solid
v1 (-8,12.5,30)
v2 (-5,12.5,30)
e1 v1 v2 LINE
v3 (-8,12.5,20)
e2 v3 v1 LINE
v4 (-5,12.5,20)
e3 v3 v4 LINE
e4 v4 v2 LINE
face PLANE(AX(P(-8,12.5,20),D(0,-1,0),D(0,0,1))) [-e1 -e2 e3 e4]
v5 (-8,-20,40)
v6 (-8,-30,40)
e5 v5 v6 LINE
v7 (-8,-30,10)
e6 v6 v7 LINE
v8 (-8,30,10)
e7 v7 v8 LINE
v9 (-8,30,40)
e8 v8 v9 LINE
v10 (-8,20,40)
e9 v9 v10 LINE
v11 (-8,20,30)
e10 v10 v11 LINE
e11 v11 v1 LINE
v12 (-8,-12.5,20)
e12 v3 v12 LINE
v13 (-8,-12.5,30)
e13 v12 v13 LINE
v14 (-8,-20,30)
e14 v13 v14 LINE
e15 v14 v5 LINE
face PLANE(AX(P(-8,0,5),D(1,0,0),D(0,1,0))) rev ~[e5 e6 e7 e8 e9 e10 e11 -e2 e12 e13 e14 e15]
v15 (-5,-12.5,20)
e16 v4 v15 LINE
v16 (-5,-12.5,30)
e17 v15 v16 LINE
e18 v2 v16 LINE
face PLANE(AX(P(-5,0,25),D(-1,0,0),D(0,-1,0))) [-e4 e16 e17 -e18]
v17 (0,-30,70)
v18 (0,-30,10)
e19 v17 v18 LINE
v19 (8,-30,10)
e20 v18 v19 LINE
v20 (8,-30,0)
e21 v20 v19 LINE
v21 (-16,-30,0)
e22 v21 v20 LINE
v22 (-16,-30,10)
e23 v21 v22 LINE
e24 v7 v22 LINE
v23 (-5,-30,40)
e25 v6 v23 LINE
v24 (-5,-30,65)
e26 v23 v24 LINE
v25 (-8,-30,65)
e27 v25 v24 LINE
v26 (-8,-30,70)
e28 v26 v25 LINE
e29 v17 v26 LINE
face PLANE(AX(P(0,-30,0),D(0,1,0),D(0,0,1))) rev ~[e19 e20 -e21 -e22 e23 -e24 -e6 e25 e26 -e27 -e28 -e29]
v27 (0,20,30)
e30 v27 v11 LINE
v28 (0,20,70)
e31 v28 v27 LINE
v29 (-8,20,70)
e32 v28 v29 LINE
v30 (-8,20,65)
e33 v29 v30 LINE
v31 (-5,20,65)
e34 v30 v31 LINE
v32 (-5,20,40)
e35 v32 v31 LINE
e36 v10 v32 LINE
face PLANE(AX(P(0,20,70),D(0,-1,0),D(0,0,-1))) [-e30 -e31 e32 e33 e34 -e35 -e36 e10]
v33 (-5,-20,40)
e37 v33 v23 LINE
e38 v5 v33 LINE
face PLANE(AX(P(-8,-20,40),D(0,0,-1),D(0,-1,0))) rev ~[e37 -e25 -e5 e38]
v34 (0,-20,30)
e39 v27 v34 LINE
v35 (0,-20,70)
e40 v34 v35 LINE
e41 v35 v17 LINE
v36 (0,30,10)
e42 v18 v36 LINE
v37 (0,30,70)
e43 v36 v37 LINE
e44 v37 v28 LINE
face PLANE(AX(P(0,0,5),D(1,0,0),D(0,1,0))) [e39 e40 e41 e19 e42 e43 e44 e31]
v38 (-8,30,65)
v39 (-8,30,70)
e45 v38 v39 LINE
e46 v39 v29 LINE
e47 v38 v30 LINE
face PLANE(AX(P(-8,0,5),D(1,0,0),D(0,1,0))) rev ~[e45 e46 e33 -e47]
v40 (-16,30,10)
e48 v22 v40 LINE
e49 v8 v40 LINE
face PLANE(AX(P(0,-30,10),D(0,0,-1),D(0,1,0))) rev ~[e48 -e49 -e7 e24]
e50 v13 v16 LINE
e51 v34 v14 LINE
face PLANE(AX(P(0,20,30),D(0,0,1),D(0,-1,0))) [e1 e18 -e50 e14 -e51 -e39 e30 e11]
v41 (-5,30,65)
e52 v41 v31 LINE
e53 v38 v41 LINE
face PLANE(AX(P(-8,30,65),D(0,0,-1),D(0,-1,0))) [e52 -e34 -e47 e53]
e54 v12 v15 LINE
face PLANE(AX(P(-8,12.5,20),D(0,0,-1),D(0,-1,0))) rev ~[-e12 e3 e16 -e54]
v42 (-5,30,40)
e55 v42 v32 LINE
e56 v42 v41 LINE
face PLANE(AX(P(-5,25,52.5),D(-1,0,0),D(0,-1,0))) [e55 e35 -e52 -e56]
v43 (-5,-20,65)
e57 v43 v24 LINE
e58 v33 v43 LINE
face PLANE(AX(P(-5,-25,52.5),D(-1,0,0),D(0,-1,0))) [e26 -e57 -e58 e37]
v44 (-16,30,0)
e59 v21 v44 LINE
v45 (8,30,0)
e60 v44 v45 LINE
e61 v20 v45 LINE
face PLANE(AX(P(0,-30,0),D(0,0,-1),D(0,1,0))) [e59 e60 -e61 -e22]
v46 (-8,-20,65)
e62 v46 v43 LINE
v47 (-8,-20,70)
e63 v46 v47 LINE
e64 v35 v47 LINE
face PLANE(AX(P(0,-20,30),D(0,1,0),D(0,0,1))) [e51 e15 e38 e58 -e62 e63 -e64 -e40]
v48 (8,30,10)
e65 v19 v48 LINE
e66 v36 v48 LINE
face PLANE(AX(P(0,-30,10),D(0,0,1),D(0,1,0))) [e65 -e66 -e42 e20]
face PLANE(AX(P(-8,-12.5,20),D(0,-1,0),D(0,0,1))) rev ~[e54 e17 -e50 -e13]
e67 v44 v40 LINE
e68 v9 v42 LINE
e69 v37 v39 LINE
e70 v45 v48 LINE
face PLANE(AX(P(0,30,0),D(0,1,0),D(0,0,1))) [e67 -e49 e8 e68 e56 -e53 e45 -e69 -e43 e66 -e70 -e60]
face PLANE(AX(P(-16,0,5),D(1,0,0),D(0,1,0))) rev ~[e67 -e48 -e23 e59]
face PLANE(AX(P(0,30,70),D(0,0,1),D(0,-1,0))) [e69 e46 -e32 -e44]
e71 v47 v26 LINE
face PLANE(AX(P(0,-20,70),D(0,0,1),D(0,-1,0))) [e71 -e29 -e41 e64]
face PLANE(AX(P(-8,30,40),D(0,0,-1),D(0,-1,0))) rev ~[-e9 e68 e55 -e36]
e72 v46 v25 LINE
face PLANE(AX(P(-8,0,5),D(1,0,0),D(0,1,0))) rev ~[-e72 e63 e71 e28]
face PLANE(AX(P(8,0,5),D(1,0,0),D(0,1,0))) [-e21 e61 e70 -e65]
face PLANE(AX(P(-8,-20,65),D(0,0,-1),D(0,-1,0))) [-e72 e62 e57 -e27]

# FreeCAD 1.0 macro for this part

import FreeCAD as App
import Part
import Sketcher

V = App.Vector
Q = App.Units.Quantity

doc = App.newDocument("Part")
body = doc.addObject("PartDesign::Body", "Body")

sketch1 = body.newObject("Sketcher::SketchObject", "Sketch")
sketch1.AttachmentSupport = (doc.getObject("YZ_Plane"), [""])
sketch1.MapMode = "FlatFace"
sketch1.addGeometry([
    Part.LineSegment(V(-30, 0, 0), V(30, 0, 0)),
    Part.LineSegment(V(30, 0, 0), V(30, 70, 0)),
    Part.LineSegment(V(30, 70, 0), V(20, 70, 0)),
    Part.LineSegment(V(20, 70, 0), V(20, 30, 0)),
    Part.LineSegment(V(20, 30, 0), V(-20, 30, 0)),
    Part.LineSegment(V(-20, 30, 0), V(-20, 70, 0)),
    Part.LineSegment(V(-20, 70, 0), V(-30, 70, 0)),
    Part.LineSegment(V(-30, 70, 0), V(-30, 0, 0)),
], False)
sketch1.addConstraint([
    Sketcher.Constraint("Coincident", 0, 2, 1, 1),
    Sketcher.Constraint("Coincident", 1, 2, 2, 1),
    Sketcher.Constraint("Coincident", 2, 2, 3, 1),
    Sketcher.Constraint("Coincident", 3, 2, 4, 1),
    Sketcher.Constraint("Coincident", 4, 2, 5, 1),
    Sketcher.Constraint("Coincident", 5, 2, 6, 1),
    Sketcher.Constraint("Coincident", 6, 2, 7, 1),
    Sketcher.Constraint("Coincident", 7, 2, 0, 1),
    Sketcher.Constraint("Horizontal", 0),
    Sketcher.Constraint("Vertical", 1),
    Sketcher.Constraint("Horizontal", 2),
    Sketcher.Constraint("Vertical", 3),
    Sketcher.Constraint("Horizontal", 4),
    Sketcher.Constraint("Vertical", 5),
    Sketcher.Constraint("Horizontal", 6),
    Sketcher.Constraint("Vertical", 7),
    Sketcher.Constraint("Symmetric", 0, 2, 7, 2, -1, 1),
    Sketcher.Constraint("Symmetric", 2, 2, 5, 2, -2),
    Sketcher.Constraint("Equal", 4, 3),
    Sketcher.Constraint("DistanceX", 0, 1, 0, 2, Q("60 mm")),
    Sketcher.Constraint("DistanceX", 2, 2, 2, 1, Q("10 mm")),
    Sketcher.Constraint("DistanceY", 1, 1, 1, 2, Q("70 mm")),
])
pad1 = body.newObject("PartDesign::Pad", "Pad")
pad1.Profile = sketch1
pad1.Length = 8
pad1.Reversed = True

sketch2 = body.newObject("Sketcher::SketchObject", "Sketch001")
sketch2.AttachmentSupport = (doc.getObject("YZ_Plane"), [""])
sketch2.MapMode = "FlatFace"
sketch2.addGeometry([
    Part.LineSegment(V(-30, 10, 0), V(-30, 0, 0)),
    Part.LineSegment(V(-30, 0, 0), V(30, 0, 0)),
    Part.LineSegment(V(30, 0, 0), V(30, 10, 0)),
    Part.LineSegment(V(30, 10, 0), V(-30, 10, 0)),
], False)
sketch2.addConstraint([
    Sketcher.Constraint("Coincident", 0, 2, 1, 1),
    Sketcher.Constraint("Coincident", 1, 2, 2, 1),
    Sketcher.Constraint("Coincident", 2, 2, 3, 1),
    Sketcher.Constraint("Coincident", 3, 2, 0, 1),
    Sketcher.Constraint("Vertical", 0),
    Sketcher.Constraint("Horizontal", 1),
    Sketcher.Constraint("Vertical", 2),
    Sketcher.Constraint("Horizontal", 3),
    Sketcher.Constraint("Symmetric", 0, 2, 1, 2, -1, 1),
    Sketcher.Constraint("DistanceX", 1, 1, 1, 2, Q("60 mm")),
    Sketcher.Constraint("DistanceY", 0, 2, 0, 1, Q("10 mm")),
])
pad2 = body.newObject("PartDesign::Pad", "Pad001")
pad2.Profile = sketch2
pad2.Length = 8

sketch3 = body.newObject("Sketcher::SketchObject", "Sketch002")
sketch3.AttachmentSupport = (doc.getObject("YZ_Plane"), [""])
sketch3.MapMode = "FlatFace"
sketch3.AttachmentOffset = App.Placement(V(0, 0, -8), App.Rotation())
sketch3.addGeometry([
    Part.LineSegment(V(30, 65, 0), V(30, 40, 0)),
    Part.LineSegment(V(30, 40, 0), V(20, 40, 0)),
    Part.LineSegment(V(20, 40, 0), V(20, 65, 0)),
    Part.LineSegment(V(20, 65, 0), V(30, 65, 0)),
    Part.LineSegment(V(-20, 65, 0), V(-20, 40, 0)),
    Part.LineSegment(V(-20, 40, 0), V(-30, 40, 0)),
    Part.LineSegment(V(-30, 40, 0), V(-30, 65, 0)),
    Part.LineSegment(V(-30, 65, 0), V(-20, 65, 0)),
    Part.LineSegment(V(12.5, 30, 0), V(12.5, 20, 0)),
    Part.LineSegment(V(12.5, 20, 0), V(-12.5, 20, 0)),
    Part.LineSegment(V(-12.5, 20, 0), V(-12.5, 30, 0)),
    Part.LineSegment(V(-12.5, 30, 0), V(12.5, 30, 0)),
], False)
sketch3.addConstraint([
    Sketcher.Constraint("Coincident", 0, 2, 1, 1),
    Sketcher.Constraint("Coincident", 1, 2, 2, 1),
    Sketcher.Constraint("Coincident", 2, 2, 3, 1),
    Sketcher.Constraint("Coincident", 3, 2, 0, 1),
    Sketcher.Constraint("Coincident", 4, 2, 5, 1),
    Sketcher.Constraint("Coincident", 5, 2, 6, 1),
    Sketcher.Constraint("Coincident", 6, 2, 7, 1),
    Sketcher.Constraint("Coincident", 7, 2, 4, 1),
    Sketcher.Constraint("Coincident", 8, 2, 9, 1),
    Sketcher.Constraint("Coincident", 9, 2, 10, 1),
    Sketcher.Constraint("Coincident", 10, 2, 11, 1),
    Sketcher.Constraint("Coincident", 11, 2, 8, 1),
    Sketcher.Constraint("Vertical", 0),
    Sketcher.Constraint("Horizontal", 1),
    Sketcher.Constraint("Vertical", 2),
    Sketcher.Constraint("Horizontal", 3),
    Sketcher.Constraint("Vertical", 4),
    Sketcher.Constraint("Horizontal", 5),
    Sketcher.Constraint("Vertical", 6),
    Sketcher.Constraint("Horizontal", 7),
    Sketcher.Constraint("Vertical", 8),
    Sketcher.Constraint("Horizontal", 9),
    Sketcher.Constraint("Vertical", 10),
    Sketcher.Constraint("Horizontal", 11),
    Sketcher.Constraint("Symmetric", 1, 2, 4, 2, -2),
    Sketcher.Constraint("Symmetric", 3, 2, 6, 2, -2),
    Sketcher.Constraint("Equal", 11, 0),
    Sketcher.Constraint("Equal", 7, 8),
    Sketcher.Constraint("DistanceX", 1, 2, 1, 1, Q("10 mm")),
    Sketcher.Constraint("DistanceX", 9, 2, 9, 1, Q("25 mm")),
    Sketcher.Constraint("DistanceX", -1, 1, 0, 2, Q("30 mm")),
    Sketcher.Constraint("DistanceY", -1, 1, 0, 2, Q("40 mm")),
    Sketcher.Constraint("DistanceY", -1, 1, 8, 2, Q("20 mm")),
    Sketcher.Constraint("DistanceX", -1, 1, 8, 2, Q("12.5 mm")),
])
pocket1 = body.newObject("PartDesign::Pocket", "Pocket")
pocket1.Profile = sketch3
pocket1.Length = 3
pocket1.Reversed = True

sketch4 = body.newObject("Sketcher::SketchObject", "Sketch003")
sketch4.AttachmentSupport = (doc.getObject("YZ_Plane"), [""])
sketch4.MapMode = "FlatFace"
sketch4.addGeometry([
    Part.LineSegment(V(-30, 10, 0), V(-30, 0, 0)),
    Part.LineSegment(V(-30, 0, 0), V(30, 0, 0)),
    Part.LineSegment(V(30, 0, 0), V(30, 10, 0)),
    Part.LineSegment(V(30, 10, 0), V(-30, 10, 0)),
], False)
sketch4.addConstraint([
    Sketcher.Constraint("Coincident", 0, 2, 1, 1),
    Sketcher.Constraint("Coincident", 1, 2, 2, 1),
    Sketcher.Constraint("Coincident", 2, 2, 3, 1),
    Sketcher.Constraint("Coincident", 3, 2, 0, 1),
    Sketcher.Constraint("Vertical", 0),
    Sketcher.Constraint("Horizontal", 1),
    Sketcher.Constraint("Vertical", 2),
    Sketcher.Constraint("Horizontal", 3),
    Sketcher.Constraint("Symmetric", 0, 2, 1, 2, -1, 1),
    Sketcher.Constraint("DistanceX", 1, 1, 1, 2, Q("60 mm")),
    Sketcher.Constraint("DistanceY", 0, 2, 0, 1, Q("10 mm")),
])
pad3 = body.newObject("PartDesign::Pad", "Pad002")
pad3.Profile = sketch4
pad3.Length = 16
pad3.Reversed = True

doc.recompute()
